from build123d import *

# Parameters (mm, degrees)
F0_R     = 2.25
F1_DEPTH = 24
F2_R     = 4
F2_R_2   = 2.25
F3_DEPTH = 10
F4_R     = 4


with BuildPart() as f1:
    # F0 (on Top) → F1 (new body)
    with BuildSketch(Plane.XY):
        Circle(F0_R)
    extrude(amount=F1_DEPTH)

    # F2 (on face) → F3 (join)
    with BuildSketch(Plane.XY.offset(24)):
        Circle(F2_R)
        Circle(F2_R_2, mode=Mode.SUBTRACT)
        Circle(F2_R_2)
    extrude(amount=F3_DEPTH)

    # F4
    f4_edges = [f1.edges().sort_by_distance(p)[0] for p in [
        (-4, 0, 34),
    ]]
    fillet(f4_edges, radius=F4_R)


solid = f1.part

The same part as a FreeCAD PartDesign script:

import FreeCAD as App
import Part
import Sketcher

V = App.Vector


def edges_at(feature, points):
    """Names of the edges that pass closest to the given points."""
    edges = feature.Shape.Edges
    near = lambda p: min(range(len(edges)), key=lambda i: edges[i].distToShape(Part.Vertex(*p))[0])
    return sorted({f"Edge{near(p) + 1}" for p in points})

doc = App.newDocument("Part")
params = doc.addObject("Spreadsheet::Sheet", "Params")
for row, (alias, value) in enumerate([
    ("sketch1_diameter", "4.5 mm"),
    ("pad1_length", "24 mm"),
    ("sketch2_diameter", "8 mm"),
    ("pad2_length", "10 mm"),
    ("fillet_radius", "4 mm"),
], start=1):
    params.set(f"A{row}", alias)
    params.set(f"B{row}", "=" + value)
    params.setAlias(f"B{row}", alias)

body = doc.addObject("PartDesign::Body", "Body")

# Sketch on XY plane
sketch1 = doc.addObject("Sketcher::SketchObject", "Sketch")
body.addObject(sketch1)
sketch1.AttachmentSupport = (doc.XY_Plane, [""])
sketch1.MapMode = "FlatFace"
sketch1.addGeometry(Part.Circle(V(0, 0, 0), V(0, 0, 1), 2.2), False)
sketch1.addConstraint(Sketcher.Constraint("Coincident", 0, 3, -1, 1))
sketch1.addConstraint(Sketcher.Constraint("Diameter", 0, 4.5))
sketch1.setExpression("Constraints[1]", "Params.sketch1_diameter")
pad1 = doc.addObject("PartDesign::Pad", "Pad")
body.addObject(pad1)
pad1.Profile = sketch1
pad1.setExpression("Length", "Params.pad1_length")

# Sketch on XY plane
sketch2 = doc.addObject("Sketcher::SketchObject", "Sketch001")
body.addObject(sketch2)
sketch2.AttachmentSupport = (doc.XY_Plane, [""])
sketch2.MapMode = "FlatFace"
sketch2.AttachmentOffset = App.Placement(V(0, 0, 24), App.Rotation())
sketch2.addGeometry(Part.Circle(V(0, 0, 0), V(0, 0, 1), 4), False)
sketch2.addConstraint(Sketcher.Constraint("Coincident", 0, 3, -1, 1))
sketch2.addConstraint(Sketcher.Constraint("Diameter", 0, 8.0))
sketch2.setExpression("Constraints[1]", "Params.sketch2_diameter")
pad2 = doc.addObject("PartDesign::Pad", "Pad001")
body.addObject(pad2)
pad2.Profile = sketch2
pad2.setExpression("Length", "Params.pad2_length")
doc.recompute()

fillet = doc.addObject("PartDesign::Fillet", "Fillet")
body.addObject(fillet)
fillet.Base = (pad2, edges_at(pad2, [(-4, 0, 34)]))
fillet.setExpression("Radius", "Params.fillet_radius")

doc.recompute()
